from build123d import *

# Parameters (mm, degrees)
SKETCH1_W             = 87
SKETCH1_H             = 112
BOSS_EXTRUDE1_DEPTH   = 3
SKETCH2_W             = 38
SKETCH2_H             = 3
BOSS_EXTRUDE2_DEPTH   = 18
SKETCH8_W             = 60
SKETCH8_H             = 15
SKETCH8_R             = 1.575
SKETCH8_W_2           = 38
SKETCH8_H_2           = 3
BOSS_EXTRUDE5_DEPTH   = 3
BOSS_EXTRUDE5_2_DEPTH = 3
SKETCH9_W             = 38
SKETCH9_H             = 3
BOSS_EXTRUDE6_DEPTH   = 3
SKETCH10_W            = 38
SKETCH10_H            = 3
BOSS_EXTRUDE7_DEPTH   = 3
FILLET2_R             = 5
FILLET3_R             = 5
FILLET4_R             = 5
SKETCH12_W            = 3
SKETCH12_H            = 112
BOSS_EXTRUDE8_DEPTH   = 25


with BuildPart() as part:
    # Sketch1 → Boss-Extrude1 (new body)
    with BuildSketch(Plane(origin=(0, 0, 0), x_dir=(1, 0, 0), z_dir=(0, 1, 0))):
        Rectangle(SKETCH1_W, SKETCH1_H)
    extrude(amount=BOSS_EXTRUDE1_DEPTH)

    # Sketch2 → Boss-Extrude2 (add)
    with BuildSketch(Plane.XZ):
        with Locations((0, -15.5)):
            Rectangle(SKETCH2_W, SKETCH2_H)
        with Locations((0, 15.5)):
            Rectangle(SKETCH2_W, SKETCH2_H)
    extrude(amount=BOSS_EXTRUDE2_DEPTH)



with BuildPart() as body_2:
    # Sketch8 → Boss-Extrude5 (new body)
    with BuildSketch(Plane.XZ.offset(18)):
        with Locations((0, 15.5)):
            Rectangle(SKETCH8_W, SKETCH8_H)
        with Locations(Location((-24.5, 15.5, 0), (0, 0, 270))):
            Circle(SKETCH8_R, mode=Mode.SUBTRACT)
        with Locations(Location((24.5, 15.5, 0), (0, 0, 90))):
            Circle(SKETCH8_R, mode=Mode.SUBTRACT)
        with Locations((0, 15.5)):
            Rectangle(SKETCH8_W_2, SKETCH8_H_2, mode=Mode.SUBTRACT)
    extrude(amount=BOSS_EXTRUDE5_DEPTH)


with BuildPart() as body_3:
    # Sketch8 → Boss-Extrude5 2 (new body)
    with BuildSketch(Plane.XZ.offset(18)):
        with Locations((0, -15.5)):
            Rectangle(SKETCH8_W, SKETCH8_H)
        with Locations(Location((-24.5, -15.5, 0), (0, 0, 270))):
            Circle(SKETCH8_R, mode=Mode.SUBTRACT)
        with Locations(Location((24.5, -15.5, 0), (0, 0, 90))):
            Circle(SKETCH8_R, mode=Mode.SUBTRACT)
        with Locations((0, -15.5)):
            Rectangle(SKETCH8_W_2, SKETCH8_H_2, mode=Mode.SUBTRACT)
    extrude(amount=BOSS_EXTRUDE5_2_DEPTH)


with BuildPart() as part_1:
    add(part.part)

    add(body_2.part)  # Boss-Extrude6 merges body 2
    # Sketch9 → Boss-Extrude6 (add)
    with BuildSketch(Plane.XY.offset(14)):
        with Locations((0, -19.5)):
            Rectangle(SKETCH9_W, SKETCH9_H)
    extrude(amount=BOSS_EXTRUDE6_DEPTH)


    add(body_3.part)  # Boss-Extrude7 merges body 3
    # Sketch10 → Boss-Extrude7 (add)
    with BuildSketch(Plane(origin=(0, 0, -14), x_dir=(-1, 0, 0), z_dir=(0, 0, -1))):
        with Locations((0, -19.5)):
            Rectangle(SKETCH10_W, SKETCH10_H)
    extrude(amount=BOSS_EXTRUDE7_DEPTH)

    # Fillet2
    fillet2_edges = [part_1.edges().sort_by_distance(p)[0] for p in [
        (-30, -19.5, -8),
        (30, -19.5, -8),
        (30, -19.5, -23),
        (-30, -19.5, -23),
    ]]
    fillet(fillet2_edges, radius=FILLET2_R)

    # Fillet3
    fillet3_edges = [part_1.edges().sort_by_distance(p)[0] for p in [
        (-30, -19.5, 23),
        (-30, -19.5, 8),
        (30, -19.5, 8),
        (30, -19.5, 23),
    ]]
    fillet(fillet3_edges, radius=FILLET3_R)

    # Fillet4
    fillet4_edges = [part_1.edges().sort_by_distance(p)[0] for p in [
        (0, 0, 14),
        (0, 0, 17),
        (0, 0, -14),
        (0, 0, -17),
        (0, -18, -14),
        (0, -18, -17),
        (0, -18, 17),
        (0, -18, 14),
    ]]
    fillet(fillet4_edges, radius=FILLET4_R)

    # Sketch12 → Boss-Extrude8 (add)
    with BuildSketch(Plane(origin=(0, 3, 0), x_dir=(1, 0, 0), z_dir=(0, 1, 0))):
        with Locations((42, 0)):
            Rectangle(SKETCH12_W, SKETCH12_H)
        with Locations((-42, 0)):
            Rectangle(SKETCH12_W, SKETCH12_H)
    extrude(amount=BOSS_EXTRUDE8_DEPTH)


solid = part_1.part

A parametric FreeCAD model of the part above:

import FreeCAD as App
import Part
import Sketcher

V = App.Vector
Q = App.Units.Quantity


def edges_at(feature, points):
    """Names of the edges that pass closest to the given points."""
    edges = feature.Shape.Edges
    near = lambda p: min(range(len(edges)), key=lambda i: edges[i].distToShape(Part.Vertex(*p))[0])
    return sorted({f"Edge{near(p) + 1}" for p in points})

doc = App.newDocument("Part")
body = doc.addObject("PartDesign::Body", "Body")

# Sketch on XZ plane
sketch1 = body.newObject("Sketcher::SketchObject", "Sketch")
sketch1.AttachmentSupport = (doc.getObject("XZ_Plane"), [""])
sketch1.MapMode = "FlatFace"
sketch1.addGeometry([
    Part.LineSegment(V(-44, -56, 0), V(-44, 56, 0)),
    Part.LineSegment(V(-44, 56, 0), V(44, 56, 0)),
    Part.LineSegment(V(44, 56, 0), V(44, -56, 0)),
    Part.LineSegment(V(44, -56, 0), V(-44, -56, 0)),
], False)
sketch1.addConstraint([
    Sketcher.Constraint("Coincident", 0, 2, 1, 1),
    Sketcher.Constraint("Coincident", 1, 2, 2, 1),
    Sketcher.Constraint("Coincident", 2, 2, 3, 1),
    Sketcher.Constraint("Coincident", 3, 2, 0, 1),
    Sketcher.Constraint("Vertical", 0),
    Sketcher.Constraint("Horizontal", 1),
    Sketcher.Constraint("Vertical", 2),
    Sketcher.Constraint("Horizontal", 3),
    Sketcher.Constraint("Symmetric", 0, 2, 2, 2, -1, 1),
    Sketcher.Constraint("DistanceX", 1, 1, 1, 2, Q("87 mm")),
    Sketcher.Constraint("DistanceY", 0, 1, 0, 2, Q("112 mm")),
])
pad1 = body.newObject("PartDesign::Pad", "Pad")
pad1.Profile = sketch1
pad1.Length = 3
pad1.Reversed = True

# Sketch on XZ plane
sketch2 = body.newObject("Sketcher::SketchObject", "Sketch001")
sketch2.AttachmentSupport = (doc.getObject("XZ_Plane"), [""])
sketch2.MapMode = "FlatFace"
sketch2.addGeometry([
    Part.LineSegment(V(-19, -14, 0), V(-19, -17, 0)),  # 0
    Part.LineSegment(V(-19, -17, 0), V(19, -17, 0)),  # 1
    Part.LineSegment(V(19, -17, 0), V(19, -14, 0)),  # 2
    Part.LineSegment(V(19, -14, 0), V(-19, -14, 0)),  # 3
    Part.LineSegment(V(-19, 17, 0), V(-19, 14, 0)),  # 4
    Part.LineSegment(V(-19, 14, 0), V(19, 14, 0)),  # 5
    Part.LineSegment(V(19, 14, 0), V(19, 17, 0)),  # 6
    Part.LineSegment(V(19, 17, 0), V(-19, 17, 0)),  # 7
], False)
sketch2.addConstraint([
    Sketcher.Constraint("Coincident", 0, 2, 1, 1),
    Sketcher.Constraint("Coincident", 1, 2, 2, 1),
    Sketcher.Constraint("Coincident", 2, 2, 3, 1),
    Sketcher.Constraint("Coincident", 3, 2, 0, 1),
    Sketcher.Constraint("Coincident", 4, 2, 5, 1),
    Sketcher.Constraint("Coincident", 5, 2, 6, 1),
    Sketcher.Constraint("Coincident", 6, 2, 7, 1),
    Sketcher.Constraint("Coincident", 7, 2, 4, 1),
    Sketcher.Constraint("Vertical", 0),
    Sketcher.Constraint("Horizontal", 1),
    Sketcher.Constraint("Vertical", 2),
    Sketcher.Constraint("Horizontal", 3),
    Sketcher.Constraint("Vertical", 4),
    Sketcher.Constraint("Horizontal", 5),
    Sketcher.Constraint("Vertical", 6),
    Sketcher.Constraint("Horizontal", 7),
    Sketcher.Constraint("Symmetric", 2, 2, 4, 2, -1, 1),
    Sketcher.Constraint("Symmetric", 0, 2, 6, 2, -1, 1),
    Sketcher.Constraint("Vertical", 3, 2, 4, 2),
    Sketcher.Constraint("DistanceX", 1, 1, 1, 2, Q("38 mm")),
    Sketcher.Constraint("DistanceY", 0, 2, 0, 1, Q("3 mm")),
    Sketcher.Constraint("DistanceY", 0, 2, -1, 1, Q("17 mm")),
])
pad2 = body.newObject("PartDesign::Pad", "Pad001")
pad2.Profile = sketch2
pad2.Length = 18
body2 = doc.addObject("PartDesign::Body", "Body001")

# Sketch on XZ plane
sketch3 = body2.newObject("Sketcher::SketchObject", "Sketch002")
sketch3.AttachmentSupport = (doc.getObject("XZ_Plane001"), [""])
sketch3.MapMode = "FlatFace"
sketch3.AttachmentOffset = App.Placement(V(0, 0, 18), App.Rotation())
sketch3.addGeometry([
    Part.LineSegment(V(-30, 23, 0), V(-30, 8, 0)),  # 0
    Part.LineSegment(V(-30, 8, 0), V(30, 8, 0)),  # 1
    Part.LineSegment(V(30, 8, 0), V(30, 23, 0)),  # 2
    Part.LineSegment(V(30, 23, 0), V(-30, 23, 0)),  # 3
    Part.Circle(V(-24.5, 15.5, 0), V(0, 0, 1), 1.6),  # 4
    Part.LineSegment(V(19, 14, 0), V(-19, 14, 0)),  # 5
    Part.LineSegment(V(-19, 14, 0), V(-19, 17, 0)),  # 6
    Part.LineSegment(V(-19, 17, 0), V(19, 17, 0)),  # 7
    Part.LineSegment(V(19, 17, 0), V(19, 14, 0)),  # 8
    Part.Circle(V(24.5, 15.5, 0), V(0, 0, 1), 1.6),  # 9
], False)
sketch3.addConstraint([
    Sketcher.Constraint("Coincident", 0, 2, 1, 1),
    Sketcher.Constraint("Coincident", 1, 2, 2, 1),
    Sketcher.Constraint("Coincident", 2, 2, 3, 1),
    Sketcher.Constraint("Coincident", 3, 2, 0, 1),
    Sketcher.Constraint("Coincident", 5, 2, 6, 1),
    Sketcher.Constraint("Coincident", 6, 2, 7, 1),
    Sketcher.Constraint("Coincident", 7, 2, 8, 1),
    Sketcher.Constraint("Coincident", 8, 2, 5, 1),
    Sketcher.Constraint("Vertical", 0),
    Sketcher.Constraint("Horizontal", 1),
    Sketcher.Constraint("Vertical", 2),
    Sketcher.Constraint("Horizontal", 3),
    Sketcher.Constraint("Horizontal", 5),
    Sketcher.Constraint("Vertical", 6),
    Sketcher.Constraint("Horizontal", 7),
    Sketcher.Constraint("Vertical", 8),
    Sketcher.Constraint("Equal", 4, 9),
    Sketcher.Constraint("Symmetric", 4, 3, 9, 3, -2),
    Sketcher.Constraint("Diameter", 4, Q("3.15 mm")),
    Sketcher.Constraint("DistanceX", 1, 1, 1, 2, Q("60 mm")),
    Sketcher.Constraint("DistanceX", 5, 2, 5, 1, Q("38 mm")),
    Sketcher.Constraint("DistanceY", 0, 2, 0, 1, Q("15 mm")),
    Sketcher.Constraint("DistanceY", 6, 1, 6, 2, Q("3 mm")),
    Sketcher.Constraint("DistanceX", 0, 2, -1, 1, Q("30 mm")),
    Sketcher.Constraint("DistanceY", -1, 1, 0, 2, Q("8 mm")),
    Sketcher.Constraint("DistanceX", 5, 2, -1, 1, Q("19 mm")),
    Sketcher.Constraint("DistanceY", -1, 1, 5, 2, Q("14 mm")),
    Sketcher.Constraint("DistanceX", 4, 3, 9, 3, Q("49 mm")),
    Sketcher.Constraint("DistanceY", -1, 1, 4, 3, Q("15.5 mm")),
])
pad3 = body2.newObject("PartDesign::Pad", "Pad002")
pad3.Profile = sketch3
pad3.Length = 3
body3 = doc.addObject("PartDesign::Body", "Body002")

# Sketch on XZ plane
sketch4 = body3.newObject("Sketcher::SketchObject", "Sketch003")
sketch4.AttachmentSupport = (doc.getObject("XZ_Plane002"), [""])
sketch4.MapMode = "FlatFace"
sketch4.AttachmentOffset = App.Placement(V(0, 0, 18), App.Rotation())
sketch4.addGeometry([
    Part.LineSegment(V(-30, -8, 0), V(-30, -23, 0)),  # 0
    Part.LineSegment(V(-30, -23, 0), V(30, -23, 0)),  # 1
    Part.LineSegment(V(30, -23, 0), V(30, -8, 0)),  # 2
    Part.LineSegment(V(30, -8, 0), V(-30, -8, 0)),  # 3
    Part.Circle(V(-24.5, -15.5, 0), V(0, 0, 1), 1.6),  # 4
    Part.LineSegment(V(19, -17, 0), V(-19, -17, 0)),  # 5
    Part.LineSegment(V(-19, -17, 0), V(-19, -14, 0)),  # 6
    Part.LineSegment(V(-19, -14, 0), V(19, -14, 0)),  # 7
    Part.LineSegment(V(19, -14, 0), V(19, -17, 0)),  # 8
    Part.Circle(V(24.5, -15.5, 0), V(0, 0, 1), 1.6),  # 9
], False)
sketch4.addConstraint([
    Sketcher.Constraint("Coincident", 0, 2, 1, 1),
    Sketcher.Constraint("Coincident", 1, 2, 2, 1),
    Sketcher.Constraint("Coincident", 2, 2, 3, 1),
    Sketcher.Constraint("Coincident", 3, 2, 0, 1),
    Sketcher.Constraint("Coincident", 5, 2, 6, 1),
    Sketcher.Constraint("Coincident", 6, 2, 7, 1),
    Sketcher.Constraint("Coincident", 7, 2, 8, 1),
    Sketcher.Constraint("Coincident", 8, 2, 5, 1),
    Sketcher.Constraint("Vertical", 0),
    Sketcher.Constraint("Horizontal", 1),
    Sketcher.Constraint("Vertical", 2),
    Sketcher.Constraint("Horizontal", 3),
    Sketcher.Constraint("Horizontal", 5),
    Sketcher.Constraint("Vertical", 6),
    Sketcher.Constraint("Horizontal", 7),
    Sketcher.Constraint("Vertical", 8),
    Sketcher.Constraint("Equal", 4, 9),
    Sketcher.Constraint("Symmetric", 4, 3, 9, 3, -2),
    Sketcher.Constraint("Diameter", 4, Q("3.15 mm")),
    Sketcher.Constraint("DistanceX", 1, 1, 1, 2, Q("60 mm")),
    Sketcher.Constraint("DistanceX", 5, 2, 5, 1, Q("38 mm")),
    Sketcher.Constraint("DistanceY", 0, 2, 0, 1, Q("15 mm")),
    Sketcher.Constraint("DistanceY", 6, 1, 6, 2, Q("3 mm")),
    Sketcher.Constraint("DistanceX", 0, 2, -1, 1, Q("30 mm")),
    Sketcher.Constraint("DistanceY", 0, 2, -1, 1, Q("23 mm")),
    Sketcher.Constraint("DistanceX", 5, 2, -1, 1, Q("19 mm")),
    Sketcher.Constraint("DistanceY", 5, 2, -1, 1, Q("17 mm")),
    Sketcher.Constraint("DistanceX", 4, 3, 9, 3, Q("49 mm")),
    Sketcher.Constraint("DistanceY", 4, 3, -1, 1, Q("15.5 mm")),
])
pad4 = body3.newObject("PartDesign::Pad", "Pad003")
pad4.Profile = sketch4
pad4.Length = 3
body.AllowCompound = True
doc.recompute()

boolean = body.newObject("PartDesign::Boolean", "Boolean")
boolean.Type = "Fuse"
boolean.addObjects([body2])

# Sketch on XY plane
sketch5 = body.newObject("Sketcher::SketchObject", "Sketch004")
sketch5.AttachmentSupport = (doc.getObject("XY_Plane"), [""])
sketch5.MapMode = "FlatFace"
sketch5.AttachmentOffset = App.Placement(V(0, 0, 14), App.Rotation())
sketch5.addGeometry([
    Part.LineSegment(V(-19, -18, 0), V(-19, -21, 0)),
    Part.LineSegment(V(-19, -21, 0), V(19, -21, 0)),
    Part.LineSegment(V(19, -21, 0), V(19, -18, 0)),
    Part.LineSegment(V(19, -18, 0), V(-19, -18, 0)),
], False)
sketch5.addConstraint([
    Sketcher.Constraint("Coincident", 0, 2, 1, 1),
    Sketcher.Constraint("Coincident", 1, 2, 2, 1),
    Sketcher.Constraint("Coincident", 2, 2, 3, 1),
    Sketcher.Constraint("Coincident", 3, 2, 0, 1),
    Sketcher.Constraint("Vertical", 0),
    Sketcher.Constraint("Horizontal", 1),
    Sketcher.Constraint("Vertical", 2),
    Sketcher.Constraint("Horizontal", 3),
    Sketcher.Constraint("DistanceX", 1, 1, 1, 2, Q("38 mm")),
    Sketcher.Constraint("DistanceY", 0, 2, 0, 1, Q("3 mm")),
    Sketcher.Constraint("DistanceX", 0, 2, -1, 1, Q("19 mm")),
    Sketcher.Constraint("DistanceY", 0, 2, -1, 1, Q("21 mm")),
])
pad5 = body.newObject("PartDesign::Pad", "Pad004")
pad5.Profile = sketch5
pad5.Length = 3
doc.recompute()

boolean2 = body.newObject("PartDesign::Boolean", "Boolean001")
boolean2.Type = "Fuse"
boolean2.addObjects([body3])

# Sketch on XY plane
sketch6 = body.newObject("Sketcher::SketchObject", "Sketch005")
sketch6.AttachmentSupport = (doc.getObject("XY_Plane"), [""])
sketch6.MapMode = "FlatFace"
sketch6.AttachmentOffset = App.Placement(V(0, 0, -14), App.Rotation())
sketch6.addGeometry([
    Part.LineSegment(V(19, -18, 0), V(19, -21, 0)),
    Part.LineSegment(V(19, -21, 0), V(-19, -21, 0)),
    Part.LineSegment(V(-19, -21, 0), V(-19, -18, 0)),
    Part.LineSegment(V(-19, -18, 0), V(19, -18, 0)),
], False)
sketch6.addConstraint([
    Sketcher.Constraint("Coincident", 0, 2, 1, 1),
    Sketcher.Constraint("Coincident", 1, 2, 2, 1),
    Sketcher.Constraint("Coincident", 2, 2, 3, 1),
    Sketcher.Constraint("Coincident", 3, 2, 0, 1),
    Sketcher.Constraint("Vertical", 0),
    Sketcher.Constraint("Horizontal", 1),
    Sketcher.Constraint("Vertical", 2),
    Sketcher.Constraint("Horizontal", 3),
    Sketcher.Constraint("DistanceX", 1, 2, 1, 1, Q("38 mm")),
    Sketcher.Constraint("DistanceY", 0, 2, 0, 1, Q("3 mm")),
    Sketcher.Constraint("DistanceX", -1, 1, 0, 2, Q("19 mm")),
    Sketcher.Constraint("DistanceY", 0, 2, -1, 1, Q("21 mm")),
])
pad6 = body.newObject("PartDesign::Pad", "Pad005")
pad6.Profile = sketch6
pad6.Length = 3
pad6.Reversed = True
doc.recompute()

fillet = body.newObject("PartDesign::Fillet", "Fillet")
fillet.Base = (pad6, edges_at(pad6, [
    (-30, -19.5, -8),
    (30, -19.5, -8),
    (30, -19.5, -23),
    (-30, -19.5, -23),
]))
fillet.Radius = 5
doc.recompute()

fillet2 = body.newObject("PartDesign::Fillet", "Fillet001")
fillet2.Base = (fillet, edges_at(fillet, [
    (-30, -19.5, 23),
    (-30, -19.5, 8),
    (30, -19.5, 8),
    (30, -19.5, 23),
]))
fillet2.Radius = 5
doc.recompute()

fillet3 = body.newObject("PartDesign::Fillet", "Fillet002")
fillet3.Base = (fillet2, edges_at(fillet2, [
    (0, 0, 14),
    (0, 0, 17),
    (0, 0, -14),
    (0, 0, -17),
    (0, -18, -14),
    (0, -18, -17),
    (0, -18, 17),
    (0, -18, 14),
]))
fillet3.Radius = 5

# Sketch on XZ plane
sketch7 = body.newObject("Sketcher::SketchObject", "Sketch006")
sketch7.AttachmentSupport = (doc.getObject("XZ_Plane"), [""])
sketch7.MapMode = "FlatFace"
sketch7.AttachmentOffset = App.Placement(V(0, 0, -3), App.Rotation())
sketch7.addGeometry([
    Part.LineSegment(V(40.5, -56, 0), V(40.5, 56, 0)),  # 0
    Part.LineSegment(V(40.5, 56, 0), V(43.5, 56, 0)),  # 1
    Part.LineSegment(V(43.5, 56, 0), V(43.5, -56, 0)),  # 2
    Part.LineSegment(V(43.5, -56, 0), V(40.5, -56, 0)),  # 3
    Part.LineSegment(V(-43.5, -56, 0), V(-43.5, 56, 0)),  # 4
    Part.LineSegment(V(-43.5, 56, 0), V(-40.5, 56, 0)),  # 5
    Part.LineSegment(V(-40.5, 56, 0), V(-40.5, -56, 0)),  # 6
    Part.LineSegment(V(-40.5, -56, 0), V(-43.5, -56, 0)),  # 7
], False)
sketch7.addConstraint([
    Sketcher.Constraint("Coincident", 0, 2, 1, 1),
    Sketcher.Constraint("Coincident", 1, 2, 2, 1),
    Sketcher.Constraint("Coincident", 2, 2, 3, 1),
    Sketcher.Constraint("Coincident", 3, 2, 0, 1),
    Sketcher.Constraint("Coincident", 4, 2, 5, 1),
    Sketcher.Constraint("Coincident", 5, 2, 6, 1),
    Sketcher.Constraint("Coincident", 6, 2, 7, 1),
    Sketcher.Constraint("Coincident", 7, 2, 4, 1),
    Sketcher.Constraint("Vertical", 0),
    Sketcher.Constraint("Horizontal", 1),
    Sketcher.Constraint("Vertical", 2),
    Sketcher.Constraint("Horizontal", 3),
    Sketcher.Constraint("Vertical", 4),
    Sketcher.Constraint("Horizontal", 5),
    Sketcher.Constraint("Vertical", 6),
    Sketcher.Constraint("Horizontal", 7),
    Sketcher.Constraint("Symmetric", 2, 2, 4, 2, -1, 1),
    Sketcher.Constraint("Symmetric", 0, 2, 6, 2, -1, 1),
    Sketcher.Constraint("Horizontal", 1, 2, 4, 2),
    Sketcher.Constraint("DistanceX", 1, 1, 1, 2, Q("3 mm")),
    Sketcher.Constraint("DistanceY", 0, 1, 0, 2, Q("112 mm")),
    Sketcher.Constraint("DistanceX", 4, 2, 0, 2, Q("84 mm")),
])
pad7 = body.newObject("PartDesign::Pad", "Pad006")
pad7.Profile = sketch7
pad7.Length = 25
pad7.Reversed = True

doc.recompute()
